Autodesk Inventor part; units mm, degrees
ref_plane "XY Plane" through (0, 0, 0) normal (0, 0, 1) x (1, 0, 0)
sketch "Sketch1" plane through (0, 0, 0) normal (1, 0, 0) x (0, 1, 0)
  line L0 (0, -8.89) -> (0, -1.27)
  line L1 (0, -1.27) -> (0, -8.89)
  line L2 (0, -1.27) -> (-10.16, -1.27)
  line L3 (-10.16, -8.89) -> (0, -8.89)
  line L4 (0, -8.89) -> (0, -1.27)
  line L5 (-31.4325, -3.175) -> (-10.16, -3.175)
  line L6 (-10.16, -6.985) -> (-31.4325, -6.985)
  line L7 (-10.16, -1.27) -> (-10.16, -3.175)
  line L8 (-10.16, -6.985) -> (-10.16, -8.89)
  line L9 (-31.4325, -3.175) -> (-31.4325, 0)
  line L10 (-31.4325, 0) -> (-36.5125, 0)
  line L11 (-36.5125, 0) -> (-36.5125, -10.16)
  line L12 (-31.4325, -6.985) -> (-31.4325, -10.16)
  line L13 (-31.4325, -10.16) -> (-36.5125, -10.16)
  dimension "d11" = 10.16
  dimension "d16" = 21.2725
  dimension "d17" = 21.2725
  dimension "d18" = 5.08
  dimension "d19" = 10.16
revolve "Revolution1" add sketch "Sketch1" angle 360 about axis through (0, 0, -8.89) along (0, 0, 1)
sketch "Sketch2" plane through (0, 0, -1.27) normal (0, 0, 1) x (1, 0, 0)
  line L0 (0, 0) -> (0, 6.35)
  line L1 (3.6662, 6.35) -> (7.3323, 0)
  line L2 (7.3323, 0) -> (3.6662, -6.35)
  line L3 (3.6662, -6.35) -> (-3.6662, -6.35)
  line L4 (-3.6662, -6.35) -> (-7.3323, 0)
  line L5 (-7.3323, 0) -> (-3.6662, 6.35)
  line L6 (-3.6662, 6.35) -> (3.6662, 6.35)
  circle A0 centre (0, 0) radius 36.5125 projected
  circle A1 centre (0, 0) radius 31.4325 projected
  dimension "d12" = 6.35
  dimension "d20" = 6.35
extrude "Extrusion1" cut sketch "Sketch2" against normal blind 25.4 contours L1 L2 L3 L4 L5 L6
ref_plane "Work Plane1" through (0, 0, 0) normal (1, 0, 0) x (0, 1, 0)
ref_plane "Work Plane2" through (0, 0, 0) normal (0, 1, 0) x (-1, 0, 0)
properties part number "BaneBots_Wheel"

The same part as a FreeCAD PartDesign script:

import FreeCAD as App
import Part
import Sketcher
from FreeCAD import Vector
Q = App.Units.Quantity


def add_polygon(sketch, points):
    """Adds a closed chain of lines whose ends are joined by coincident constraints."""
    first, n = sketch.GeometryCount, len(points)
    for a, b in zip(points, points[1:] + points[:1]):
        sketch.addGeometry(Part.LineSegment(App.Vector(*a, 0), App.Vector(*b, 0)), False)
    for i in range(n):
        sketch.addConstraint(Sketcher.Constraint("Coincident", first + i, 2, first + (i + 1) % n, 1))

doc = App.newDocument("Part")
body = doc.addObject("PartDesign::Body", "Body")

sketch1 = body.newObject("Sketcher::SketchObject", "Sketch")
sketch1.AttachmentSupport = (doc.getObject("YZ_Plane"), [""])
sketch1.MapMode = "FlatFace"
add_polygon(sketch1, [(-10.16, -8.89), (0, -8.89), (0, -1.27), (-10.16, -1.27), (-10.16, -3.175), (-31.4325, -3.175), (-31.4325, 0), (-36.5125, 0), (-36.5125, -10.16), (-31.4325, -10.16), (-31.4325, -6.985), (-10.16, -6.985)])
sketch1.addConstraint([
    Sketcher.Constraint("Horizontal", 0),
    Sketcher.Constraint("Vertical", 1),
    Sketcher.Constraint("Horizontal", 2),
    Sketcher.Constraint("Vertical", 3),
    Sketcher.Constraint("Horizontal", 4),
    Sketcher.Constraint("Vertical", 5),
    Sketcher.Constraint("Horizontal", 6),
    Sketcher.Constraint("Vertical", 7),
    Sketcher.Constraint("Horizontal", 8),
    Sketcher.Constraint("Vertical", 9),
    Sketcher.Constraint("Horizontal", 10),
    Sketcher.Constraint("Vertical", 11),
    Sketcher.Constraint("PointOnObject", 0, 2, -2),
    Sketcher.Constraint("PointOnObject", 5, 2, -1),
    Sketcher.Constraint("Vertical", 5, 2, 8, 2),
    Sketcher.Constraint("Vertical", 3, 2, 10, 2),
    Sketcher.Constraint("Equal", 2, 7),
    Sketcher.Constraint("Equal", 5, 9),
    Sketcher.Constraint("Equal", 3, 11),
    Sketcher.Constraint("DistanceX", 0, 1, 0, 2, Q("0.4 in")),
    Sketcher.Constraint("DistanceX", 6, 2, 6, 1, Q("0.2 in")),
    Sketcher.Constraint("DistanceX", 4, 2, 4, 1, Q("0.8375 in")),
    Sketcher.Constraint("DistanceY", 1, 1, 1, 2, Q("0.3 in")),
    Sketcher.Constraint("DistanceY", 3, 2, 3, 1, Q("0.075 in")),
])
revolution = body.newObject("PartDesign::Revolution", "Revolution")
revolution.Profile = sketch1
revolution.ReferenceAxis = (sketch1, ["V_Axis"])
revolution.Angle = 360

sketch2 = body.newObject("Sketcher::SketchObject", "Sketch001")
sketch2.AttachmentSupport = (doc.getObject("XY_Plane"), [""])
sketch2.MapMode = "FlatFace"
sketch2.AttachmentOffset = App.Placement(Vector(0, 0, -0.05 * 25.4), App.Rotation())
add_polygon(sketch2, [(7.3323, 0), (3.6662, 6.35), (-3.6662, 6.35), (-7.3323, 0), (-3.6662, -6.35), (3.6662, -6.35)])
sketch2.addConstraint([
    Sketcher.Constraint("Horizontal", 1),
    Sketcher.Constraint("Horizontal", 4),
    Sketcher.Constraint("Symmetric", 0, 2, 3, 2, -1, 1),
    Sketcher.Constraint("Symmetric", 2, 2, 5, 2, -1, 1),
    Sketcher.Constraint("PointOnObject", 2, 2, -1),
    Sketcher.Constraint("Parallel", 2, 5),
    Sketcher.Constraint("Vertical", 1, 2, 3, 2),
    Sketcher.Constraint("DistanceY", -1, 1, 0, 2, Q("0.25 in")),
    Sketcher.Constraint("Angle", 0, Q("119.9995 deg")),
    Sketcher.Constraint("DistanceX", 2, 2, 0, 2, Q("0.433 in")),
])
pocket1 = body.newObject("PartDesign::Pocket", "Pocket")
pocket1.Profile = sketch2
pocket1.Length = Q("1 in")

doc.recompute()
